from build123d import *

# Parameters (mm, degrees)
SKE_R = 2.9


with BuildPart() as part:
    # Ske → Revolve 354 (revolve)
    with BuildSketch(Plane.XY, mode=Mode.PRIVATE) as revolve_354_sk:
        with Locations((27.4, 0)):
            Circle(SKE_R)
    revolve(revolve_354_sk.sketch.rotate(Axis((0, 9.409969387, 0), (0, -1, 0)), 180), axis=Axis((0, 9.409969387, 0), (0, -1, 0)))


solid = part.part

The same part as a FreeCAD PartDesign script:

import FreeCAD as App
import Part
import Sketcher

V = App.Vector
Q = App.Units.Quantity

doc = App.newDocument("Part")
params = doc.addObject("Spreadsheet::Sheet", "Params")
for row, (alias, value) in enumerate([
    ("sketch1_diameter", "5.8 mm"),
    ("revolution_angle", "360 deg"),
], start=1):
    params.set(f"A{row}", alias)
    params.set(f"B{row}", "=" + value)
    params.setAlias(f"B{row}", alias)

body = doc.addObject("PartDesign::Body", "Body")

sketch1 = body.newObject("Sketcher::SketchObject", "Sketch")
sketch1.AttachmentSupport = (doc.getObject("XY_Plane"), [""])
sketch1.MapMode = "FlatFace"
sketch1.addGeometry(Part.Circle(V(27.4, 0, 0), V(0, 0, 1), 2.9), False)
sketch1.addConstraint(Sketcher.Constraint("PointOnObject", 0, 3, -1))
sketch1.addConstraint(Sketcher.Constraint("Diameter", 0, Q("5.8 mm")))
sketch1.addConstraint(Sketcher.Constraint("DistanceX", -1, 1, 0, 3, Q("27.4 mm")))
sketch1.setExpression("Constraints[1]", "Params.sketch1_diameter")
revolution = body.newObject("PartDesign::Revolution", "Revolution")
revolution.Profile = sketch1
revolution.ReferenceAxis = (sketch1, ["V_Axis"])
revolution.setExpression("Angle", "Params.revolution_angle")

doc.recompute()
